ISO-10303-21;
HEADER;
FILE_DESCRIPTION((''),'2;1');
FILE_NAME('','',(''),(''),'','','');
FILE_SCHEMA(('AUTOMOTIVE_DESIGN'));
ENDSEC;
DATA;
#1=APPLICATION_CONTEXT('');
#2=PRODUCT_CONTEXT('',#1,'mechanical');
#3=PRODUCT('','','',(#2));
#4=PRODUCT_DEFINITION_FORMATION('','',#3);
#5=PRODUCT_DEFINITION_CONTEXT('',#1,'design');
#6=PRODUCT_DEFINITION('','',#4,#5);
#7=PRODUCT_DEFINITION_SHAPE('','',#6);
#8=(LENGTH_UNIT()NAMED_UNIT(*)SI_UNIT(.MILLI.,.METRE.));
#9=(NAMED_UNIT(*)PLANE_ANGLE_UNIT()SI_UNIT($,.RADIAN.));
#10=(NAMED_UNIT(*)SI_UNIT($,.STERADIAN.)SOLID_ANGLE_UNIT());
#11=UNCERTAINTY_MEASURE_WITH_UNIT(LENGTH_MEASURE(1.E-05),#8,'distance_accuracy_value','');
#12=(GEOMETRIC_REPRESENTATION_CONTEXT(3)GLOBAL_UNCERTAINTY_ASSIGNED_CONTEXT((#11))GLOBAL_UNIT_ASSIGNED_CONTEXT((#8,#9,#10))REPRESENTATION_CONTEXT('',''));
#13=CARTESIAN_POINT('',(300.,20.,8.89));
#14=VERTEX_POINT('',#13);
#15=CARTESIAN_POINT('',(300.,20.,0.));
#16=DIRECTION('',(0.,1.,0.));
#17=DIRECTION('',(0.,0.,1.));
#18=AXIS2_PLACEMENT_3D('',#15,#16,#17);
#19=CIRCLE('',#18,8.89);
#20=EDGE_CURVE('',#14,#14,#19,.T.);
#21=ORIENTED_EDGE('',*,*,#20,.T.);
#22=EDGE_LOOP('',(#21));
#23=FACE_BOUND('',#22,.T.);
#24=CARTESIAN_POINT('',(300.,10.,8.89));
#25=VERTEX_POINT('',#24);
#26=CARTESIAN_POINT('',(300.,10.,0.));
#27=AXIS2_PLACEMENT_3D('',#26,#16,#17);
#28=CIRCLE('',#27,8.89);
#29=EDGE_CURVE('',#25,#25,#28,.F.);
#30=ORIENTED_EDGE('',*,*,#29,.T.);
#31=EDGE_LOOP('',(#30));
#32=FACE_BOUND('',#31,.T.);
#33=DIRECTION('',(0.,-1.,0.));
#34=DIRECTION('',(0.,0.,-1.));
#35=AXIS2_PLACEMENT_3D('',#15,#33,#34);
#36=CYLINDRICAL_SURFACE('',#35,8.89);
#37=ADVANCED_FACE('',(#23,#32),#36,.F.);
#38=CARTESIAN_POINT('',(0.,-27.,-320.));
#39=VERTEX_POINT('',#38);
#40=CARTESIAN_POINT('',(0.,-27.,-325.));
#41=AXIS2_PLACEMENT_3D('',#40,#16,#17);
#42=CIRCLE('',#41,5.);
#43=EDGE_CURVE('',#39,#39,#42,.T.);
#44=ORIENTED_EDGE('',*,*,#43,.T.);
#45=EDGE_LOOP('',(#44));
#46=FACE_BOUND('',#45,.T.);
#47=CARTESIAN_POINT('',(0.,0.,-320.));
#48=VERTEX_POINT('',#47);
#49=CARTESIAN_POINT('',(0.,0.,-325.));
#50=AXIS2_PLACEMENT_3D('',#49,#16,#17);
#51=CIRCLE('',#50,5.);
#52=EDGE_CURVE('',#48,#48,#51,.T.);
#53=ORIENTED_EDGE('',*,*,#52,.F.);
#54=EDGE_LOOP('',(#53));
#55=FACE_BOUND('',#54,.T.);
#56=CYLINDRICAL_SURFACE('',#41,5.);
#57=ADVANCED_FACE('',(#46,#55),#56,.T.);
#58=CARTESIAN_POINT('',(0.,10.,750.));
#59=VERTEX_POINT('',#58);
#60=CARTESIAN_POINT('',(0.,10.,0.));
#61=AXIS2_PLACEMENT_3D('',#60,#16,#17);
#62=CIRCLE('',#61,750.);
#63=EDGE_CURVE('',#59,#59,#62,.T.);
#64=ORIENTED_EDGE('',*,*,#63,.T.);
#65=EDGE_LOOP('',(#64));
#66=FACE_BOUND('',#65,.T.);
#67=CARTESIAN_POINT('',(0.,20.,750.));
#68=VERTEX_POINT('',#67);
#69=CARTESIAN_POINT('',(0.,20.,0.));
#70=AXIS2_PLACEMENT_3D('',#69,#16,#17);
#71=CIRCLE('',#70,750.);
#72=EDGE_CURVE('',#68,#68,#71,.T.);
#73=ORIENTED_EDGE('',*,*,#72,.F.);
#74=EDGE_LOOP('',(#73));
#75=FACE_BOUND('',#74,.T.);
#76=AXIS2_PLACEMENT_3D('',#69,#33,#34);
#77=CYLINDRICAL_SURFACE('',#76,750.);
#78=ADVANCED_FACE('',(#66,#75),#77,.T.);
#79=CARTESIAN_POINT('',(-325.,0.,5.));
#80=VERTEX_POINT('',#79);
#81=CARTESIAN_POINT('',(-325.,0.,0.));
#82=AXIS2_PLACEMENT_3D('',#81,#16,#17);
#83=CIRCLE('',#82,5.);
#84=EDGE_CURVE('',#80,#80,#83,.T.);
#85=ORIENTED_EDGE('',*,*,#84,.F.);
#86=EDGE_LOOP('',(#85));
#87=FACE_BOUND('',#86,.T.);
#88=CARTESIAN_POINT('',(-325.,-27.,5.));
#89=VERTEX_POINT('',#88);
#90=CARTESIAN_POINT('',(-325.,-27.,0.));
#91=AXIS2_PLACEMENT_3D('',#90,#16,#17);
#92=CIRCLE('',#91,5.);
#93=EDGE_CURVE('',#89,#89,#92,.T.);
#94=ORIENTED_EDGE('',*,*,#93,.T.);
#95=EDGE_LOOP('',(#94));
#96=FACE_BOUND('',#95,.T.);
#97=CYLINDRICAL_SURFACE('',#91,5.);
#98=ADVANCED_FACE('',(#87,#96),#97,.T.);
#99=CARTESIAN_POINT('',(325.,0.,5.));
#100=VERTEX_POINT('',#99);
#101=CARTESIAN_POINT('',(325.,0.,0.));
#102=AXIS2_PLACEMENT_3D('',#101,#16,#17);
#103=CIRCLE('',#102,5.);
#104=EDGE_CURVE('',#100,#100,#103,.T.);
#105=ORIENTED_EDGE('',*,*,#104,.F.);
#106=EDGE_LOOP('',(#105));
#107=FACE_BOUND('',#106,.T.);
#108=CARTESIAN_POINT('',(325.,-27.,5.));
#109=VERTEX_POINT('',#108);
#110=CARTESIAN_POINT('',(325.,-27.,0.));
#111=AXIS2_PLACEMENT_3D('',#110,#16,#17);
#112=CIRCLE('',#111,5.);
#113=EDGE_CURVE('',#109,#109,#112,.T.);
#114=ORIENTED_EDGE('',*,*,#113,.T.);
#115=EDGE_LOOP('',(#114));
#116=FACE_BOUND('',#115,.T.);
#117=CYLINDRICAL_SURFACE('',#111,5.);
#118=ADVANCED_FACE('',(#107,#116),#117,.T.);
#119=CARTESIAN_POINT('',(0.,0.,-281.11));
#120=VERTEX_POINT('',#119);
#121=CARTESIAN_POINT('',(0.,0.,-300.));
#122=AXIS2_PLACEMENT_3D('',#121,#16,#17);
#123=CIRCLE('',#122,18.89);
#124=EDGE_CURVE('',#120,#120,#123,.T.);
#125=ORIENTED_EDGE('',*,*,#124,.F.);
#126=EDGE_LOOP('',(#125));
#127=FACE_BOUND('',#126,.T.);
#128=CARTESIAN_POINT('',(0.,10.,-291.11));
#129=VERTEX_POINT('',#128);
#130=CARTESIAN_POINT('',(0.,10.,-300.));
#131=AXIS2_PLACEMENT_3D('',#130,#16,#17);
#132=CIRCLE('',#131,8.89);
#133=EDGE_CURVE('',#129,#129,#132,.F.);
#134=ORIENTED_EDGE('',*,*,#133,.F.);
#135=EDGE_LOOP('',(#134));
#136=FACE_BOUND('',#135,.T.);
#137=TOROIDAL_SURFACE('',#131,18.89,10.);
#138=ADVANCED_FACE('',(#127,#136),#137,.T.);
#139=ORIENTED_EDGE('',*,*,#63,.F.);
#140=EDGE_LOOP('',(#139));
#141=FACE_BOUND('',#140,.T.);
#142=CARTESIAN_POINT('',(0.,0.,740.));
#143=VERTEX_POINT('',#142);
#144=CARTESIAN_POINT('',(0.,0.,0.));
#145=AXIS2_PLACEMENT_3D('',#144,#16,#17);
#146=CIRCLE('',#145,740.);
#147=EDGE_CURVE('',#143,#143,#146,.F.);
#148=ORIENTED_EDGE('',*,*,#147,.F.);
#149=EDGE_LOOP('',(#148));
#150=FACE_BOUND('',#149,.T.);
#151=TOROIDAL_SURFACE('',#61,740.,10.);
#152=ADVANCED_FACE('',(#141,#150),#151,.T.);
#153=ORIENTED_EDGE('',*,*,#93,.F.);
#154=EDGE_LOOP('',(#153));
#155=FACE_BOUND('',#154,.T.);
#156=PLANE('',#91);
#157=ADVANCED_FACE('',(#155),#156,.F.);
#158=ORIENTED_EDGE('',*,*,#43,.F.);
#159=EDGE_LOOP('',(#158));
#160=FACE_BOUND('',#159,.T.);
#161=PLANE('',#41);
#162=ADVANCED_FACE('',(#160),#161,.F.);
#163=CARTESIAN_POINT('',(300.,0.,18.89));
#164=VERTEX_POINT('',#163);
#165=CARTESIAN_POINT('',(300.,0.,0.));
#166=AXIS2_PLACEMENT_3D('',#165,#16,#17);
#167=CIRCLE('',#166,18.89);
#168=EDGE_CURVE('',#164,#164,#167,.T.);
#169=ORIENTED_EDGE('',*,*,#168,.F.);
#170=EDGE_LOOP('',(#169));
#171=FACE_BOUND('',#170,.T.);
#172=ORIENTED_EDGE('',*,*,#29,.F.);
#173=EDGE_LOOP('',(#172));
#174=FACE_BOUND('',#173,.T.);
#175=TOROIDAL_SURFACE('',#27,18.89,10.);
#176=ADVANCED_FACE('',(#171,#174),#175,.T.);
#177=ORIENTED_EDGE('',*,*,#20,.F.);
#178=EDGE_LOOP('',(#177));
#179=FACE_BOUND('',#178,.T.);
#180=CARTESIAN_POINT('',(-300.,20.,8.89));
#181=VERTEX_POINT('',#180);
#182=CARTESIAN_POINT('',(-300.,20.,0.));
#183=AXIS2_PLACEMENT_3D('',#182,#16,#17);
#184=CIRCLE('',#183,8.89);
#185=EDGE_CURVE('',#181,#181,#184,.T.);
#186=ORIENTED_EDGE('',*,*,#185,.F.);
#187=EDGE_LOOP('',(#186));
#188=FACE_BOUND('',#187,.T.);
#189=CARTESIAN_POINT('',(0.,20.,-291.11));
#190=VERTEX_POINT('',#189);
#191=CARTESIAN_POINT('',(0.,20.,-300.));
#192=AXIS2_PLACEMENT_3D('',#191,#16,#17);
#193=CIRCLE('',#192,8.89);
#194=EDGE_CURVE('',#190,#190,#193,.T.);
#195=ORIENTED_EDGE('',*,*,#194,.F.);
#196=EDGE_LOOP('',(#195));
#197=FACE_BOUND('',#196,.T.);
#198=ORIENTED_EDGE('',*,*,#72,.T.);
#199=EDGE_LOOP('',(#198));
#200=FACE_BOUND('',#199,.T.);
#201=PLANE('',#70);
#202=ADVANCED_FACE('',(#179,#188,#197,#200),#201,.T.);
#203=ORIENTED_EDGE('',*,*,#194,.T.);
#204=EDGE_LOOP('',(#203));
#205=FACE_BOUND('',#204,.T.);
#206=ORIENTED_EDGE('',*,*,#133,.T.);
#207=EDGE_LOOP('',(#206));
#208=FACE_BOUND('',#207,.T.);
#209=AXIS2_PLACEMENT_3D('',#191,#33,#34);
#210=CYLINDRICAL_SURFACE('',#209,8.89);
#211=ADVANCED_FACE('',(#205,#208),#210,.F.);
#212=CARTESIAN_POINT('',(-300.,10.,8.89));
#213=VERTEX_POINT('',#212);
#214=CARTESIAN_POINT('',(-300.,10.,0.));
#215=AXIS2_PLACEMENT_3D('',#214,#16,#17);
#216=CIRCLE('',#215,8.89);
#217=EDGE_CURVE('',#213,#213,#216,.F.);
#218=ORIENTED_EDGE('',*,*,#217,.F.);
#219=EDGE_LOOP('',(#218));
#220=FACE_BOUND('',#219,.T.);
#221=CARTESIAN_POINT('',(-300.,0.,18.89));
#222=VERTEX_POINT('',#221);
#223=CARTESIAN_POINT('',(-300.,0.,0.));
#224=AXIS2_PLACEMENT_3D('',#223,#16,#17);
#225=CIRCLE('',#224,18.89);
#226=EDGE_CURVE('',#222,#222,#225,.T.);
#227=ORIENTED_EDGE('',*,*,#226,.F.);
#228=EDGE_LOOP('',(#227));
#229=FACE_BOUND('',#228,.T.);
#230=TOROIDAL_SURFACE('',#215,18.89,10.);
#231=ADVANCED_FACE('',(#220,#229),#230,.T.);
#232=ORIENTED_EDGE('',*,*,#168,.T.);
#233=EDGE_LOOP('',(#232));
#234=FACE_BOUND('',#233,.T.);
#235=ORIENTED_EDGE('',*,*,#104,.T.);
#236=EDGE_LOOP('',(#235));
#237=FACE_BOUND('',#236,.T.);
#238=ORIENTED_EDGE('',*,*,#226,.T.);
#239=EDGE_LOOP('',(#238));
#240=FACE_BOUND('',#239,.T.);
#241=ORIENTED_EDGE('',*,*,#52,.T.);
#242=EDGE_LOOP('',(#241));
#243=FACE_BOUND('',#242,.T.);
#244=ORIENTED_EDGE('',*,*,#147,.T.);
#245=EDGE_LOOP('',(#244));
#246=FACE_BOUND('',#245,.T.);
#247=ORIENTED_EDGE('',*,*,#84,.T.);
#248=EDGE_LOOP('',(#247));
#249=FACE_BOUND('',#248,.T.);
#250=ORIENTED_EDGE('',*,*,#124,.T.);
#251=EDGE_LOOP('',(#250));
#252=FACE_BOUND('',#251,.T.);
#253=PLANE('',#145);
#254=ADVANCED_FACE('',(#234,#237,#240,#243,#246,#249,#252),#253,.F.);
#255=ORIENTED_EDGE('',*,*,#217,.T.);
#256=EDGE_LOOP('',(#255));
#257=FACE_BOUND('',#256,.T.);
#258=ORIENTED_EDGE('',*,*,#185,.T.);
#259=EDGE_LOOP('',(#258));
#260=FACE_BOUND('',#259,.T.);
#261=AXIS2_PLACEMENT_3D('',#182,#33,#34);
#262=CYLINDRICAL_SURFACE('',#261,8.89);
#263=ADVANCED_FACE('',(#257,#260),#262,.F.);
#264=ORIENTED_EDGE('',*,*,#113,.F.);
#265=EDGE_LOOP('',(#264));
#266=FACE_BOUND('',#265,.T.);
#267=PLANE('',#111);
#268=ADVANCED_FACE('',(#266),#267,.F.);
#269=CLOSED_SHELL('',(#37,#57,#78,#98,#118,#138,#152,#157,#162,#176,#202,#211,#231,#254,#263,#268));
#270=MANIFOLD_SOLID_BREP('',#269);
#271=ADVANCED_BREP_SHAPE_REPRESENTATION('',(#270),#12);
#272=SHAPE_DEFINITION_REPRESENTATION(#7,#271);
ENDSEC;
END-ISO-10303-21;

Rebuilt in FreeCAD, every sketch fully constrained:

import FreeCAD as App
import Part
import Sketcher

V = App.Vector
Q = App.Units.Quantity


def edges_at(feature, points):
    """Names of the edges that pass closest to the given points."""
    edges = feature.Shape.Edges
    near = lambda p: min(range(len(edges)), key=lambda i: edges[i].distToShape(Part.Vertex(*p))[0])
    return sorted({f"Edge{near(p) + 1}" for p in points})

doc = App.newDocument("Part")
body = doc.addObject("PartDesign::Body", "Body")

# Sketch on XZ plane
sketch1 = doc.addObject("Sketcher::SketchObject", "Sketch")
body.addObject(sketch1)
sketch1.AttachmentSupport = (doc.XZ_Plane, [""])
sketch1.MapMode = "FlatFace"
sketch1.addGeometry(Part.Circle(V(0, 0, 0), V(0, 0, 1), 750), False)
sketch1.addGeometry(Part.Circle(V(0, -300, 0), V(0, 0, 1), 9), False)
sketch1.addGeometry(Part.Circle(V(-300, 0, 0), V(0, 0, 1), 9), False)
sketch1.addGeometry(Part.Circle(V(300, 0, 0), V(0, 0, 1), 9), False)
sketch1.addConstraint(Sketcher.Constraint("Coincident", 0, 3, -1, 1))
sketch1.addConstraint(Sketcher.Constraint("Equal", 1, 2))
sketch1.addConstraint(Sketcher.Constraint("Equal", 2, 3))
sketch1.addConstraint(Sketcher.Constraint("Symmetric", 2, 3, 3, 3, -1, 1))
sketch1.addConstraint(Sketcher.Constraint("PointOnObject", 1, 3, -2))
sketch1.addConstraint(Sketcher.Constraint("PointOnObject", 2, 3, -1))
sketch1.addConstraint(Sketcher.Constraint("Diameter", 0, Q("1500 mm")))
sketch1.addConstraint(Sketcher.Constraint("Diameter", 1, Q("17.78 mm")))
sketch1.addConstraint(Sketcher.Constraint("DistanceY", 1, 3, -1, 1, Q("300 mm")))
sketch1.addConstraint(Sketcher.Constraint("DistanceX", 2, 3, -1, 1, Q("300 mm")))
pad1 = doc.addObject("PartDesign::Pad", "Pad")
body.addObject(pad1)
pad1.Profile = sketch1
pad1.Length = 20
pad1.Reversed = True
doc.recompute()

fillet = doc.addObject("PartDesign::Fillet", "Fillet")
body.addObject(fillet)
fillet.Base = (pad1, edges_at(pad1, [
    (0, 0, -750),
    (-300, 0, -8.89),
    (300, 0, -8.89),
    (0, 0, -308.89),
]))
fillet.Radius = 10

# Sketch on XZ plane
sketch2 = doc.addObject("Sketcher::SketchObject", "Sketch001")
body.addObject(sketch2)
sketch2.AttachmentSupport = (doc.XZ_Plane, [""])
sketch2.MapMode = "FlatFace"
sketch2.AttachmentOffset = App.Placement(V(0, 0, -20), App.Rotation())
sketch2.addGeometry(Part.Circle(V(-325, 0, 0), V(0, 0, 1), 5), False)
sketch2.addGeometry(Part.Circle(V(325, 0, 0), V(0, 0, 1), 5), False)
sketch2.addGeometry(Part.Circle(V(0, -325, 0), V(0, 0, 1), 5), False)
sketch2.addConstraint(Sketcher.Constraint("Equal", 0, 1))
sketch2.addConstraint(Sketcher.Constraint("Equal", 1, 2))
sketch2.addConstraint(Sketcher.Constraint("Symmetric", 0, 3, 1, 3, -1, 1))
sketch2.addConstraint(Sketcher.Constraint("PointOnObject", 0, 3, -1))
sketch2.addConstraint(Sketcher.Constraint("PointOnObject", 2, 3, -2))
sketch2.addConstraint(Sketcher.Constraint("Diameter", 0, Q("10 mm")))
sketch2.addConstraint(Sketcher.Constraint("DistanceX", 0, 3, -1, 1, Q("325 mm")))
sketch2.addConstraint(Sketcher.Constraint("DistanceY", 2, 3, -1, 1, Q("325 mm")))
pad2 = doc.addObject("PartDesign::Pad", "Pad001")
body.addObject(pad2)
pad2.Profile = sketch2
pad2.Length = 47

doc.recompute()
